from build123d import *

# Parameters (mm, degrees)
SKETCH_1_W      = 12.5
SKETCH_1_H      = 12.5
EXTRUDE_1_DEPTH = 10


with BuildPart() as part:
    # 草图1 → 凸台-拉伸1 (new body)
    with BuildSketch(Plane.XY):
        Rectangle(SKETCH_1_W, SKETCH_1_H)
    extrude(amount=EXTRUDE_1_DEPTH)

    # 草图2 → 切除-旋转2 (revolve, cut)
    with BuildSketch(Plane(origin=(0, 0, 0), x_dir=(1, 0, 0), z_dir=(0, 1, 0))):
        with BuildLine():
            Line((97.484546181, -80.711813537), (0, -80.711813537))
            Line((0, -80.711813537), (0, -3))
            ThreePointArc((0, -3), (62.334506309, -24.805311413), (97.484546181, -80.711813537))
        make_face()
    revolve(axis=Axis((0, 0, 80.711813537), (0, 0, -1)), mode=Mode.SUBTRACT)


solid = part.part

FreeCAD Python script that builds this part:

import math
import FreeCAD as App
import Part
import Sketcher

V = App.Vector
Q = App.Units.Quantity


def add_polygon(sketch, points):
    """Adds a closed chain of lines whose ends are joined by coincident constraints."""
    first, n = sketch.GeometryCount, len(points)
    for a, b in zip(points, points[1:] + points[:1]):
        sketch.addGeometry(Part.LineSegment(App.Vector(*a, 0), App.Vector(*b, 0)), False)
    for i in range(n):
        sketch.addConstraint(Sketcher.Constraint("Coincident", first + i, 2, first + (i + 1) % n, 1))

doc = App.newDocument("Part")
body = doc.addObject("PartDesign::Body", "Body")

# Sketch on XY plane
sketch1 = body.newObject("Sketcher::SketchObject", "Sketch")
sketch1.AttachmentSupport = (doc.getObject("XY_Plane"), [""])
sketch1.MapMode = "FlatFace"
add_polygon(sketch1, [(-6, 6), (-6, -6), (6, -6), (6, 6)])  # lines 0-3
sketch1.addConstraint([
    Sketcher.Constraint("Vertical", 0),
    Sketcher.Constraint("Horizontal", 1),
    Sketcher.Constraint("Vertical", 2),
    Sketcher.Constraint("Horizontal", 3),
    Sketcher.Constraint("Symmetric", 0, 2, 2, 2, -1, 1),
    Sketcher.Constraint("Equal", 3, 0),
    Sketcher.Constraint("DistanceX", 1, 1, 1, 2, Q("12.5 mm")),
])
pad1 = body.newObject("PartDesign::Pad", "Pad")
pad1.Profile = sketch1
pad1.Length = 10

# Sketch on XZ plane
sketch2 = body.newObject("Sketcher::SketchObject", "Sketch001")
sketch2.AttachmentSupport = (doc.getObject("XZ_Plane"), [""])
sketch2.MapMode = "FlatFace"
sketch2.addGeometry([
    Part.LineSegment(V(0, 81, 0), V(97, 81, 0)),
    Part.ArcOfCircle(Part.Circle(V(0, 103, 0), V(0, 0, 1), 100), math.radians(-90), math.radians(-13)),
    Part.LineSegment(V(0, 3, 0), V(0, 81, 0)),
], False)
sketch2.addConstraint([
    Sketcher.Constraint("Coincident", 0, 2, 1, 2),
    Sketcher.Constraint("Coincident", 1, 1, 2, 1),
    Sketcher.Constraint("Coincident", 2, 2, 0, 1),
    Sketcher.Constraint("Horizontal", 0),
    Sketcher.Constraint("Vertical", 2),
    Sketcher.Constraint("PointOnObject", 1, 3, -2),
    Sketcher.Constraint("PointOnObject", 1, 1, -2),
    Sketcher.Constraint("Radius", 1, Q("100 mm")),
    Sketcher.Constraint("DistanceY", -1, 1, 1, 3, Q("103 mm")),
    Sketcher.Constraint("DistanceX", 0, 1, 0, 2, Q("97.484546 mm")),
])
groove = body.newObject("PartDesign::Groove", "Groove")
groove.Profile = sketch2
groove.ReferenceAxis = (sketch2, ["V_Axis"])
groove.Angle = 360

doc.recompute()
